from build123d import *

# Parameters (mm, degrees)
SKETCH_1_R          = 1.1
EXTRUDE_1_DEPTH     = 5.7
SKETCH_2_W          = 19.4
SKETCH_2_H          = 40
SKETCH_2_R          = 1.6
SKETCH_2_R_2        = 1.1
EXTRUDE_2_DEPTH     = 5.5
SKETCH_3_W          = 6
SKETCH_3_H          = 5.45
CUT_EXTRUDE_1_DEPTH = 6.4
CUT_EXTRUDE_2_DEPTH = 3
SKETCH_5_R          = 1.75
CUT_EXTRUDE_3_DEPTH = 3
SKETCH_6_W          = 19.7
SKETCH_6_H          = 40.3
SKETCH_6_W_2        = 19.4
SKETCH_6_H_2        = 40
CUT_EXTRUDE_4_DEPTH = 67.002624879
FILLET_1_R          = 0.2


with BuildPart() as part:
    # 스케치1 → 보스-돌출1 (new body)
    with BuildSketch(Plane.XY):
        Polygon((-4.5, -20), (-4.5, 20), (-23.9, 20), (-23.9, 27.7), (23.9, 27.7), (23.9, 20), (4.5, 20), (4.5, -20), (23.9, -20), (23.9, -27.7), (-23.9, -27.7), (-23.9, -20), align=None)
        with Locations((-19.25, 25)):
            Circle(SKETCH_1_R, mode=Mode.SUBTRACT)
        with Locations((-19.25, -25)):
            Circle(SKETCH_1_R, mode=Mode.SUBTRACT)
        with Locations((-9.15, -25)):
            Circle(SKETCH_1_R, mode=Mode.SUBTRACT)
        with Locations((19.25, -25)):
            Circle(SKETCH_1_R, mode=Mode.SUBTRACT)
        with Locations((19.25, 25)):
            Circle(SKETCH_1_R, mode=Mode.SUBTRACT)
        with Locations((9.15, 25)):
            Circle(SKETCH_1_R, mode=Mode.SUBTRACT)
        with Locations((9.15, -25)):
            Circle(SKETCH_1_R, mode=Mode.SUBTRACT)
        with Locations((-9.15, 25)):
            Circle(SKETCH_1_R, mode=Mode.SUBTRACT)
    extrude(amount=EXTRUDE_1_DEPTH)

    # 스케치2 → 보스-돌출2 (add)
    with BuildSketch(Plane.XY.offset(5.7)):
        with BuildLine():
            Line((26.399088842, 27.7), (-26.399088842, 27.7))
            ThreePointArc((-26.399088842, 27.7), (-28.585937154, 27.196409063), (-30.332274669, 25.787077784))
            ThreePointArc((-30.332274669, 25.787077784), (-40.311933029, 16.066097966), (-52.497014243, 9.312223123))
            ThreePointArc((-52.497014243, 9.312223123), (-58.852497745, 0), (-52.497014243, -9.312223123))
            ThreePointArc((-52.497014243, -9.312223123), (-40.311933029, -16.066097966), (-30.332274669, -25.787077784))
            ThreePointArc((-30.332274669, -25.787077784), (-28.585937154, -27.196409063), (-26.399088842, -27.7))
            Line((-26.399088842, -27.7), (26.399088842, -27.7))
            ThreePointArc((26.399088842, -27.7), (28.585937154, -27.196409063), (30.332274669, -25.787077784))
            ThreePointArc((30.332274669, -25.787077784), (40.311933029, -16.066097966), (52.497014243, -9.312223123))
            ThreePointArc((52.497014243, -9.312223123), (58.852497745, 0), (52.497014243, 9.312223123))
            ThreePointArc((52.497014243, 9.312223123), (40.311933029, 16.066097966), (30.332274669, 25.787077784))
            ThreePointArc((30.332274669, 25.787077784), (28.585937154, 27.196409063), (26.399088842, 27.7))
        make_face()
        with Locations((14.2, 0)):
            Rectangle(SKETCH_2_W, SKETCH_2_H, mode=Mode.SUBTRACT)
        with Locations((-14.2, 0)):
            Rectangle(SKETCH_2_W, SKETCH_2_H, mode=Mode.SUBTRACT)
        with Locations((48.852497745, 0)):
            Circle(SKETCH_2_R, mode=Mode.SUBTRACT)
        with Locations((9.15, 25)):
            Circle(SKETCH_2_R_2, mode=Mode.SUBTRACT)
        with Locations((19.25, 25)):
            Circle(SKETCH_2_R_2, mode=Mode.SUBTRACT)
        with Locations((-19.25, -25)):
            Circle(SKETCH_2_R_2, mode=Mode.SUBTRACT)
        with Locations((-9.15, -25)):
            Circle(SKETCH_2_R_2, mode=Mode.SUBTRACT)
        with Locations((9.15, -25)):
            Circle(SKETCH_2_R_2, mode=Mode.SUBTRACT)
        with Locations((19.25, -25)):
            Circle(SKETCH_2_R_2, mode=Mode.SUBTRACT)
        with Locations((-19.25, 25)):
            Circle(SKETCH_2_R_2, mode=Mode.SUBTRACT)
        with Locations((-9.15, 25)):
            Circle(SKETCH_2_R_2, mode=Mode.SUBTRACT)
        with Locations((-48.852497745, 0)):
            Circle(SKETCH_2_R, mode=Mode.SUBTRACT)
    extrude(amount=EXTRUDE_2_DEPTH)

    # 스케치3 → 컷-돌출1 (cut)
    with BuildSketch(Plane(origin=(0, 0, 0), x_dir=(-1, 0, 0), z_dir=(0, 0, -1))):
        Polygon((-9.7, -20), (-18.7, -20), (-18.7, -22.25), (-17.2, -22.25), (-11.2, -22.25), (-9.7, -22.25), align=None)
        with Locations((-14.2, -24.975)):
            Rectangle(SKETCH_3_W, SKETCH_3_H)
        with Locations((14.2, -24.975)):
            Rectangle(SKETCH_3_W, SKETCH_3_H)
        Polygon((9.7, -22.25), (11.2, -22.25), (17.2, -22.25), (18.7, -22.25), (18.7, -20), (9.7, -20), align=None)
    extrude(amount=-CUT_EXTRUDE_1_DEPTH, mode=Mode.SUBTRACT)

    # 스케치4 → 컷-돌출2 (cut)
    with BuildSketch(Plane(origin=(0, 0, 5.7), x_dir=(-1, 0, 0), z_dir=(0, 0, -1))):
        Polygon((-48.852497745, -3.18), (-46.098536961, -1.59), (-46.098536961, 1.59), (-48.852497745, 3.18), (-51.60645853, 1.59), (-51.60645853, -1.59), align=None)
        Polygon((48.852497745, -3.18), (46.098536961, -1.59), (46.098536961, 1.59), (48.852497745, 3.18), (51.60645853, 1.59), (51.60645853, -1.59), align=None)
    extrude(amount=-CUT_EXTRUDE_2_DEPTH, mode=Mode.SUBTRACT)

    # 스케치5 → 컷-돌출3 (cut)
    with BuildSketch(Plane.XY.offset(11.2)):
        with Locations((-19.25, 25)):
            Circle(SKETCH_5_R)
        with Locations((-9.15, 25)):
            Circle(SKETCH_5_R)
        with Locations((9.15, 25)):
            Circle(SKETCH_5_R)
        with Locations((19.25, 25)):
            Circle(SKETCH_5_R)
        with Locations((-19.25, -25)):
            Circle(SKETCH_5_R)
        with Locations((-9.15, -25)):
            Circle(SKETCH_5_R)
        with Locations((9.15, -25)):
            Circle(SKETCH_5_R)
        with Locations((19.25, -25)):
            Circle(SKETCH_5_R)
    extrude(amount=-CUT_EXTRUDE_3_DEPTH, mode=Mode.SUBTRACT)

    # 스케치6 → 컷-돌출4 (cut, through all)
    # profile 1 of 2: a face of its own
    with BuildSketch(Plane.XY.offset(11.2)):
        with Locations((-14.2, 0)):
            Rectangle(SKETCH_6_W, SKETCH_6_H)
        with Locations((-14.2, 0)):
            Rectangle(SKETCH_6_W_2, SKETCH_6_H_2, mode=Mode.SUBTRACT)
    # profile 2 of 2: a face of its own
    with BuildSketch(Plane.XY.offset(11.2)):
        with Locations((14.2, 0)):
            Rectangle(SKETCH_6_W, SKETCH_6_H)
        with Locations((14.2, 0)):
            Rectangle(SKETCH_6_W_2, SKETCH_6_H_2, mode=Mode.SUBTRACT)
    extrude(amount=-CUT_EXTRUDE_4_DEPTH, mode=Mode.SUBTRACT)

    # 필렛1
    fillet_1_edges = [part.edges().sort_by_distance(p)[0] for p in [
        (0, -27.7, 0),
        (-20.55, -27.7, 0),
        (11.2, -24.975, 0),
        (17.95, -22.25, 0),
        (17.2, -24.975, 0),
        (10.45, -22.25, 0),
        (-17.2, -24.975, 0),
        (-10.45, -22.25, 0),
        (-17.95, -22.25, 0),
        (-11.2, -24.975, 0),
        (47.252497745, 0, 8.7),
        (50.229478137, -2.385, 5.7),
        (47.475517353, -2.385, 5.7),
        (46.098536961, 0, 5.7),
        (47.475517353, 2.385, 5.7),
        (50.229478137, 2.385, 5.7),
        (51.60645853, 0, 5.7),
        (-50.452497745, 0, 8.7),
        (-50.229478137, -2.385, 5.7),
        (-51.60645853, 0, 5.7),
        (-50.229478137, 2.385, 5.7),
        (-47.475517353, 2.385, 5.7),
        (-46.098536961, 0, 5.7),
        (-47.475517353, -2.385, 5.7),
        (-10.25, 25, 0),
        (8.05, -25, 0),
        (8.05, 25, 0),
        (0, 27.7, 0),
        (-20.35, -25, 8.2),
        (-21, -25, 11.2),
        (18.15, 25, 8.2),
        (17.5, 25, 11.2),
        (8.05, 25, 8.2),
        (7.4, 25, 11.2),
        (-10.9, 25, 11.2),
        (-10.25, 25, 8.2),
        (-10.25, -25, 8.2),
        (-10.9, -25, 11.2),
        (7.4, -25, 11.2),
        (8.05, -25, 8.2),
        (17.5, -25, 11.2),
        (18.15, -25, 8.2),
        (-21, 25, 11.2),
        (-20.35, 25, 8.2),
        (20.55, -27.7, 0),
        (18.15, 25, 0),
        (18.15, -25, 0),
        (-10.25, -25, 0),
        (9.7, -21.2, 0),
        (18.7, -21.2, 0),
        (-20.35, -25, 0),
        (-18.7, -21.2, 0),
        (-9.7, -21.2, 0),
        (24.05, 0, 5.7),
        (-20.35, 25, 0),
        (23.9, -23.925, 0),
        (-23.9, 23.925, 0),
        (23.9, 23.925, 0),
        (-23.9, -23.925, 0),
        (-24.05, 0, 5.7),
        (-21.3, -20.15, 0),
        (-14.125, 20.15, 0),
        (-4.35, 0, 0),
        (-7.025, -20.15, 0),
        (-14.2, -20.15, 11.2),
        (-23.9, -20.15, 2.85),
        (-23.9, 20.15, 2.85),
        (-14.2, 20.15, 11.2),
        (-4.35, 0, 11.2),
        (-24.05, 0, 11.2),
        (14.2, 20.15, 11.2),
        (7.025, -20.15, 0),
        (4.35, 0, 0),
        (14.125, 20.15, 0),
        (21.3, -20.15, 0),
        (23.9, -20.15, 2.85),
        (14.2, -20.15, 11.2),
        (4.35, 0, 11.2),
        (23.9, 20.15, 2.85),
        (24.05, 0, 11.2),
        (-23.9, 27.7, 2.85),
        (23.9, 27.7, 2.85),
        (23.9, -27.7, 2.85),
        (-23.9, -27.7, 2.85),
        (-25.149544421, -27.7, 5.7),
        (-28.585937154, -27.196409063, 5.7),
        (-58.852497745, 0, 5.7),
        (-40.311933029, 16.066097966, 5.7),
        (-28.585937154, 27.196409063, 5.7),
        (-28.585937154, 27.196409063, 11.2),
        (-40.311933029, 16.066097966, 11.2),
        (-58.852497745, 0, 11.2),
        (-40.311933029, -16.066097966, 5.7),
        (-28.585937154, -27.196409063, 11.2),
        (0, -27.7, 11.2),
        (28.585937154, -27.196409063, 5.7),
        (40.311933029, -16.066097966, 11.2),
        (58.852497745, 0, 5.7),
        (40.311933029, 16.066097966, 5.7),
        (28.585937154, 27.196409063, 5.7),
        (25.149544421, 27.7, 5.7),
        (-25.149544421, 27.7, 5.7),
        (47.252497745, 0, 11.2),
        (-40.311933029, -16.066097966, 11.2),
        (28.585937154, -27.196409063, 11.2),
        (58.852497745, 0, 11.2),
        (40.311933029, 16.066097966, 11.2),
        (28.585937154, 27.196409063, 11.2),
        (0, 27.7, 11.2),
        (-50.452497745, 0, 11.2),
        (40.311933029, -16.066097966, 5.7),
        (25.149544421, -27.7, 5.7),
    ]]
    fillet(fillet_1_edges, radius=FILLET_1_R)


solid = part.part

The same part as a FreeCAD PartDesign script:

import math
import FreeCAD as App
import Part
import Sketcher

V = App.Vector
Q = App.Units.Quantity


def edges_at(feature, points):
    """Names of the edges that pass closest to the given points."""
    edges = feature.Shape.Edges
    near = lambda p: min(range(len(edges)), key=lambda i: edges[i].distToShape(Part.Vertex(*p))[0])
    return sorted({f"Edge{near(p) + 1}" for p in points})


def add_polygon(sketch, points):
    """Adds a closed chain of lines whose ends are joined by coincident constraints."""
    first, n = sketch.GeometryCount, len(points)
    for a, b in zip(points, points[1:] + points[:1]):
        sketch.addGeometry(Part.LineSegment(App.Vector(*a, 0), App.Vector(*b, 0)), False)
    for i in range(n):
        sketch.addConstraint(Sketcher.Constraint("Coincident", first + i, 2, first + (i + 1) % n, 1))

doc = App.newDocument("Part")
params = doc.addObject("Spreadsheet::Sheet", "Params")
for row, (alias, value) in enumerate([
    ("sketch1_diameter", "2.2 mm"),
    ("sketch1_height", "40 mm"),
    ("sketch1_width", "19.4 mm"),
    ("sketch1_width2", "47.8 mm"),
    ("sketch1_height2", "7.7 mm"),
    ("pad1_length", "5.7 mm"),
    ("sketch2_radius", "5 mm"),
    ("sketch2_radius2", "10 mm"),
    ("sketch2_diameter", "2.2 mm"),
    ("sketch2_diameter2", "3.2 mm"),
    ("sketch2_radius3", "52.5 mm"),
    ("pad2_length", "5.5 mm"),
    ("sketch3_width", "9 mm"),
    ("sketch3_width2", "6 mm"),
    ("sketch3_height", "2.25 mm"),
    ("sketch3_height2", "5.45 mm"),
    ("pocket1_length", "6.4 mm"),
    ("sketch4_height", "3.18 mm"),
    ("sketch4_length", "3.18 mm"),
    ("pocket2_length", "3 mm"),
    ("sketch5_diameter", "3.5 mm"),
    ("pocket3_length", "3 mm"),
    ("sketch6_height", "40 mm"),
    ("sketch6_width", "19.7 mm"),
    ("sketch6_width2", "19.4 mm"),
    ("sketch6_height2", "40.3 mm"),
    ("pocket4_length", "67.002625 mm"),
    ("fillet_radius", "0.2 mm"),
], start=1):
    params.set(f"A{row}", alias)
    params.set(f"B{row}", "=" + value)
    params.setAlias(f"B{row}", alias)

body = doc.addObject("PartDesign::Body", "Body")

sketch1 = body.newObject("Sketcher::SketchObject", "Sketch")
sketch1.AttachmentSupport = (doc.getObject("XY_Plane"), [""])
sketch1.MapMode = "FlatFace"
add_polygon(sketch1, [(-4.5, 20), (-4.5, -20), (-23.9, -20), (-23.9, -27.7), (23.9, -27.7), (23.9, -20), (4.5, -20), (4.5, 20), (23.9, 20), (23.9, 27.7), (-23.9, 27.7), (-23.9, 20)])
sketch1.addGeometry(Part.Circle(V(19.25, -25, 0), V(0, 0, 1), 1.1), False)
sketch1.addGeometry(Part.Circle(V(9.15, -25, 0), V(0, 0, 1), 1.1), False)
sketch1.addGeometry(Part.Circle(V(-9.15, -25, 0), V(0, 0, 1), 1.1), False)
sketch1.addGeometry(Part.Circle(V(-19.25, -25, 0), V(0, 0, 1), 1.1), False)
sketch1.addGeometry(Part.Circle(V(19.25, 25, 0), V(0, 0, 1), 1.1), False)
sketch1.addGeometry(Part.Circle(V(9.15, 25, 0), V(0, 0, 1), 1.1), False)
sketch1.addGeometry(Part.Circle(V(-9.15, 25, 0), V(0, 0, 1), 1.1), False)
sketch1.addGeometry(Part.Circle(V(-19.25, 25, 0), V(0, 0, 1), 1.1), False)
sketch1.addConstraint([
    Sketcher.Constraint("Vertical", 0),
    Sketcher.Constraint("Horizontal", 1),
    Sketcher.Constraint("Vertical", 2),
    Sketcher.Constraint("Horizontal", 3),
    Sketcher.Constraint("Vertical", 4),
    Sketcher.Constraint("Horizontal", 5),
    Sketcher.Constraint("Vertical", 6),
    Sketcher.Constraint("Horizontal", 7),
    Sketcher.Constraint("Vertical", 8),
    Sketcher.Constraint("Horizontal", 9),
    Sketcher.Constraint("Vertical", 10),
    Sketcher.Constraint("Horizontal", 11),
    Sketcher.Constraint("Equal", 12, 13),
    Sketcher.Constraint("Equal", 13, 14),
    Sketcher.Constraint("Equal", 14, 15),
    Sketcher.Constraint("Equal", 15, 16),
    Sketcher.Constraint("Equal", 16, 17),
    Sketcher.Constraint("Equal", 17, 18),
    Sketcher.Constraint("Equal", 18, 19),
    Sketcher.Constraint("Symmetric", 15, 3, 16, 3, -1, 1),
    Sketcher.Constraint("Symmetric", 14, 3, 17, 3, -1, 1),
    Sketcher.Constraint("Symmetric", 13, 3, 18, 3, -1, 1),
    Sketcher.Constraint("Symmetric", 12, 3, 19, 3, -1, 1),
    Sketcher.Constraint("Symmetric", 0, 2, 6, 2, -1, 1),
    Sketcher.Constraint("Symmetric", 2, 2, 8, 2, -1, 1),
    Sketcher.Constraint("Symmetric", 4, 2, 10, 2, -1, 1),
    Sketcher.Constraint("Symmetric", 13, 3, 14, 3, -2),
    Sketcher.Constraint("Symmetric", 12, 3, 15, 3, -2),
    Sketcher.Constraint("Symmetric", 1, 2, 4, 2, -2),
    Sketcher.Constraint("Horizontal", 12, 3, 13, 3),
    Sketcher.Constraint("Diameter", 12, 2.2),
    Sketcher.Constraint("DistanceY", 0, 2, 0, 1, 40.0),
    Sketcher.Constraint("DistanceX", 1, 2, 1, 1, 19.4),
    Sketcher.Constraint("DistanceX", 3, 1, 3, 2, 47.8),
    Sketcher.Constraint("DistanceY", 2, 2, 2, 1, 7.7),
    Sketcher.Constraint("DistanceY", 12, 3, -1, 1, 25.0),
    Sketcher.Constraint("DistanceX", 13, 3, 12, 3, 10.1),
    Sketcher.Constraint("DistanceX", 14, 3, 13, 3, 18.3),
])
sketch1.setExpression("Constraints[42]", "Params.sketch1_diameter")
sketch1.setExpression("Constraints[43]", "Params.sketch1_height")
sketch1.setExpression("Constraints[44]", "Params.sketch1_width")
sketch1.setExpression("Constraints[45]", "Params.sketch1_width2")
sketch1.setExpression("Constraints[46]", "Params.sketch1_height2")
pad1 = body.newObject("PartDesign::Pad", "Pad")
pad1.Profile = sketch1
pad1.setExpression("Length", "Params.pad1_length")

sketch2 = body.newObject("Sketcher::SketchObject", "Sketch001")
sketch2.AttachmentSupport = (doc.getObject("XY_Plane"), [""])
sketch2.MapMode = "FlatFace"
sketch2.AttachmentOffset = App.Placement(V(0, 0, 5.7), App.Rotation())
sketch2.addGeometry(Part.LineSegment(V(26.399089, 27.7, 0), V(-26.399089, 27.7, 0)), False)
sketch2.addGeometry(Part.ArcOfCircle(Part.Circle(V(-26.399089, 22.7, 0), V(0, 0, 1), 5), math.radians(90), math.radians(141.872351)), False)
sketch2.addGeometry(Part.ArcOfCircle(Part.Circle(V(-71.630726, 58.201395, 0), V(0, 0, 1), 52.5), math.radians(-68.62616), math.radians(-38.127649)), False)
sketch2.addGeometry(Part.ArcOfCircle(Part.Circle(V(-48.852498, 0, 0), V(0, 0, 1), 10), math.radians(111.37384), math.radians(248.62616)), False)
sketch2.addGeometry(Part.ArcOfCircle(Part.Circle(V(-71.630726, -58.201395, 0), V(0, 0, 1), 52.5), math.radians(38.127649), math.radians(68.62616)), False)
sketch2.addGeometry(Part.ArcOfCircle(Part.Circle(V(-26.399089, -22.7, 0), V(0, 0, 1), 5), math.radians(-141.872351), math.radians(-90)), False)
sketch2.addGeometry(Part.LineSegment(V(-26.399089, -27.7, 0), V(26.399089, -27.7, 0)), False)
sketch2.addGeometry(Part.ArcOfCircle(Part.Circle(V(26.399089, -22.7, 0), V(0, 0, 1), 5), math.radians(-90), math.radians(-38.127649)), False)
sketch2.addGeometry(Part.ArcOfCircle(Part.Circle(V(71.630726, -58.201395, 0), V(0, 0, 1), 52.5), math.radians(111.37384), math.radians(141.872351)), False)
sketch2.addGeometry(Part.ArcOfCircle(Part.Circle(V(48.852498, 0, 0), V(0, 0, 1), 10), math.radians(-68.62616), math.radians(68.62616)), False)
sketch2.addGeometry(Part.ArcOfCircle(Part.Circle(V(71.630726, 58.201395, 0), V(0, 0, 1), 52.5), math.radians(-141.872351), math.radians(-111.37384)), False)
sketch2.addGeometry(Part.ArcOfCircle(Part.Circle(V(26.399089, 22.7, 0), V(0, 0, 1), 5), math.radians(38.127649), math.radians(90)), False)
sketch2.addGeometry(Part.Circle(V(-19.25, -25, 0), V(0, 0, 1), 1.1), False)
sketch2.addGeometry(Part.Circle(V(-9.15, -25, 0), V(0, 0, 1), 1.1), False)
sketch2.addGeometry(Part.Circle(V(9.15, -25, 0), V(0, 0, 1), 1.1), False)
sketch2.addGeometry(Part.Circle(V(19.25, -25, 0), V(0, 0, 1), 1.1), False)
sketch2.addGeometry(Part.Circle(V(-48.852498, 0, 0), V(0, 0, 1), 1.6), False)
add_polygon(sketch2, [(-4.5, -20), (-23.9, -20), (-23.9, 20), (-4.5, 20)])
sketch2.addGeometry(Part.Circle(V(-19.25, 25, 0), V(0, 0, 1), 1.1), False)
sketch2.addGeometry(Part.Circle(V(-9.15, 25, 0), V(0, 0, 1), 1.1), False)
add_polygon(sketch2, [(23.9, -20), (4.5, -20), (4.5, 20), (23.9, 20)])
sketch2.addGeometry(Part.Circle(V(48.852498, 0, 0), V(0, 0, 1), 1.6), False)
sketch2.addGeometry(Part.Circle(V(9.15, 25, 0), V(0, 0, 1), 1.1), False)
sketch2.addGeometry(Part.Circle(V(19.25, 25, 0), V(0, 0, 1), 1.1), False)
sketch2.addConstraint([
    Sketcher.Constraint("Tangent", 0, 2, 1, 1),
    Sketcher.Constraint("Tangent", 1, 2, 2, 2),
    Sketcher.Constraint("Tangent", 2, 1, 3, 1),
    Sketcher.Constraint("Tangent", 3, 2, 4, 2),
    Sketcher.Constraint("Tangent", 4, 1, 5, 1),
    Sketcher.Constraint("Tangent", 5, 2, 6, 1),
    Sketcher.Constraint("Tangent", 6, 2, 7, 1),
    Sketcher.Constraint("Tangent", 7, 2, 8, 2),
    Sketcher.Constraint("Tangent", 8, 1, 9, 1),
    Sketcher.Constraint("Tangent", 9, 2, 10, 2),
    Sketcher.Constraint("Tangent", 10, 1, 11, 1),
    Sketcher.Constraint("Tangent", 11, 2, 0, 1),
    Sketcher.Constraint("Horizontal", 0),
    Sketcher.Constraint("Horizontal", 6),
    Sketcher.Constraint("Horizontal", 17),
    Sketcher.Constraint("Vertical", 18),
    Sketcher.Constraint("Horizontal", 19),
    Sketcher.Constraint("Vertical", 20),
    Sketcher.Constraint("Horizontal", 23),
    Sketcher.Constraint("Vertical", 24),
    Sketcher.Constraint("Horizontal", 25),
    Sketcher.Constraint("Vertical", 26),
    Sketcher.Constraint("Coincident", 16, 3, 3, 3),
    Sketcher.Constraint("Coincident", 27, 3, 9, 3),
    Sketcher.Constraint("Equal", 2, 4),
    Sketcher.Constraint("Equal", 1, 5),
    Sketcher.Constraint("Equal", 5, 7),
    Sketcher.Constraint("Equal", 4, 8),
    Sketcher.Constraint("Equal", 3, 9),
    Sketcher.Constraint("Equal", 8, 10),
    Sketcher.Constraint("Equal", 7, 11),
    Sketcher.Constraint("Equal", 12, 13),
    Sketcher.Constraint("Equal", 13, 14),
    Sketcher.Constraint("Equal", 14, 15),
    Sketcher.Constraint("Equal", 15, 21),
    Sketcher.Constraint("Equal", 21, 22),
    Sketcher.Constraint("Equal", 16, 27),
    Sketcher.Constraint("Equal", 22, 28),
    Sketcher.Constraint("Equal", 28, 29),
    Sketcher.Constraint("Symmetric", 1, 3, 7, 3, -1, 1),
    Sketcher.Constraint("Symmetric", 3, 3, 9, 3, -1, 1),
    Sketcher.Constraint("Symmetric", 15, 3, 21, 3, -1, 1),
    Sketcher.Constraint("Symmetric", 14, 3, 22, 3, -1, 1),
    Sketcher.Constraint("Symmetric", 13, 3, 28, 3, -1, 1),
    Sketcher.Constraint("Symmetric", 12, 3, 29, 3, -1, 1),
    Sketcher.Constraint("Symmetric", 19, 2, 23, 2, -1, 1),
    Sketcher.Constraint("Symmetric", 17, 2, 25, 2, -1, 1),
    Sketcher.Constraint("Symmetric", 4, 3, 8, 3, -2),
    Sketcher.Constraint("Symmetric", 13, 3, 14, 3, -2),
    Sketcher.Constraint("Symmetric", 12, 3, 15, 3, -2),
    Sketcher.Constraint("Horizontal", 2, 3, 10, 3),
    Sketcher.Constraint("Horizontal", 12, 3, 13, 3),
    Sketcher.Constraint("Horizontal", 20, 2, 23, 2),
    Sketcher.Constraint("Radius", 1, 5.0),
    Sketcher.Constraint("Radius", 3, 10.0),
    Sketcher.Constraint("Diameter", 12, 2.2),
    Sketcher.Constraint("Diameter", 16, 3.2),
    Sketcher.Constraint("Radius", 2, 52.5),
    Sketcher.Constraint("DistanceY", 18, 1, 18, 2, 40.0),
    Sketcher.Constraint("DistanceX", 17, 2, 17, 1, 19.4),
    Sketcher.Constraint("DistanceY", 12, 3, -1, 1, 25.0),
    Sketcher.Constraint("DistanceX", 20, 2, 23, 2, 9.0),
    Sketcher.Constraint("DistanceY", -1, 1, 1, 3, 22.7),
    Sketcher.Constraint("DistanceX", 12, 3, 13, 3, 10.1),
    Sketcher.Constraint("DistanceX", 13, 3, 14, 3, 18.3),
    Sketcher.Constraint("DistanceX", 0, 2, 0, 1, 52.798178),
    Sketcher.Constraint("DistanceX", 3, 3, 1, 3, 22.453409),
])
sketch2.setExpression("Constraints[61]", "Params.sketch2_radius")
sketch2.setExpression("Constraints[62]", "Params.sketch2_radius2")
sketch2.setExpression("Constraints[63]", "Params.sketch2_diameter")
sketch2.setExpression("Constraints[64]", "Params.sketch2_diameter2")
sketch2.setExpression("Constraints[65]", "Params.sketch2_radius3")
pad2 = body.newObject("PartDesign::Pad", "Pad001")
pad2.Profile = sketch2
pad2.setExpression("Length", "Params.pad2_length")

sketch3 = body.newObject("Sketcher::SketchObject", "Sketch002")
sketch3.AttachmentSupport = (doc.getObject("XY_Plane"), [""])
sketch3.MapMode = "FlatFace"
add_polygon(sketch3, [(9.7, -20), (18.7, -20), (18.7, -22.25), (17.2, -22.25), (17.2, -27.7), (11.2, -27.7), (11.2, -22.25), (9.7, -22.25)])
add_polygon(sketch3, [(-11.2, -22.25), (-11.2, -27.7), (-17.2, -27.7), (-17.2, -22.25), (-18.7, -22.25), (-18.7, -20), (-9.7, -20), (-9.7, -22.25)])
sketch3.addConstraint([
    Sketcher.Constraint("Horizontal", 0),
    Sketcher.Constraint("Vertical", 1),
    Sketcher.Constraint("Horizontal", 2),
    Sketcher.Constraint("Vertical", 3),
    Sketcher.Constraint("Horizontal", 4),
    Sketcher.Constraint("Vertical", 5),
    Sketcher.Constraint("Horizontal", 6),
    Sketcher.Constraint("Vertical", 7),
    Sketcher.Constraint("Vertical", 8),
    Sketcher.Constraint("Horizontal", 9),
    Sketcher.Constraint("Vertical", 10),
    Sketcher.Constraint("Horizontal", 11),
    Sketcher.Constraint("Vertical", 12),
    Sketcher.Constraint("Horizontal", 13),
    Sketcher.Constraint("Vertical", 14),
    Sketcher.Constraint("Horizontal", 15),
    Sketcher.Constraint("Symmetric", 4, 2, 8, 2, -2),
    Sketcher.Constraint("Symmetric", 2, 2, 10, 2, -2),
    Sketcher.Constraint("Symmetric", 0, 2, 12, 2, -2),
    Sketcher.Constraint("Symmetric", 6, 2, 14, 2, -2),
    Sketcher.Constraint("Horizontal", 2, 2, 5, 2),
    Sketcher.Constraint("Equal", 2, 6),
    Sketcher.Constraint("DistanceX", 0, 1, 0, 2, 9.0),
    Sketcher.Constraint("DistanceX", 4, 2, 4, 1, 6.0),
    Sketcher.Constraint("DistanceY", 0, 2, -1, 1, 20.0),
    Sketcher.Constraint("DistanceY", 1, 2, 1, 1, 2.25),
    Sketcher.Constraint("DistanceY", 3, 2, 3, 1, 5.45),
    Sketcher.Constraint("DistanceX", -1, 1, 0, 2, 18.7),
])
sketch3.setExpression("Constraints[38]", "Params.sketch3_width")
sketch3.setExpression("Constraints[39]", "Params.sketch3_width2")
sketch3.setExpression("Constraints[41]", "Params.sketch3_height")
sketch3.setExpression("Constraints[42]", "Params.sketch3_height2")
pocket1 = body.newObject("PartDesign::Pocket", "Pocket")
pocket1.Profile = sketch3
pocket1.setExpression("Length", "Params.pocket1_length")
pocket1.Reversed = True

sketch4 = body.newObject("Sketcher::SketchObject", "Sketch003")
sketch4.AttachmentSupport = (doc.getObject("XY_Plane"), [""])
sketch4.MapMode = "FlatFace"
sketch4.AttachmentOffset = App.Placement(V(0, 0, 5.7), App.Rotation())
add_polygon(sketch4, [(48.852498, -3.18), (46.098537, -1.59), (46.098537, 1.59), (48.852498, 3.18), (51.606459, 1.59), (51.606459, -1.59)])
add_polygon(sketch4, [(-46.098537, -1.59), (-48.852498, -3.18), (-51.606459, -1.59), (-51.606459, 1.59), (-48.852498, 3.18), (-46.098537, 1.59)])
sketch4.addConstraint([
    Sketcher.Constraint("Vertical", 1),
    Sketcher.Constraint("Vertical", 4),
    Sketcher.Constraint("Vertical", 8),
    Sketcher.Constraint("Vertical", 11),
    Sketcher.Constraint("Symmetric", 2, 2, 6, 2, -1, 1),
    Sketcher.Constraint("Symmetric", 3, 2, 7, 2, -1, 1),
    Sketcher.Constraint("Symmetric", 5, 2, 9, 2, -1, 1),
    Sketcher.Constraint("Symmetric", 0, 2, 10, 2, -1, 1),
    Sketcher.Constraint("Symmetric", 5, 2, 6, 2, -2),
    Sketcher.Constraint("Parallel", 0, 3),
    Sketcher.Constraint("Parallel", 2, 5),
    Sketcher.Constraint("Parallel", 5, 6),
    Sketcher.Constraint("Parallel", 6, 9),
    Sketcher.Constraint("Horizontal", 1, 2, 3, 2),
    Sketcher.Constraint("Horizontal", 0, 2, 4, 2),
    Sketcher.Constraint("Angle", 0, Q("150 deg")),
    Sketcher.Constraint("DistanceY", 1, 1, 1, 2, 3.18),
    Sketcher.Constraint("Distance", 0, 3.18),
    Sketcher.Constraint("DistanceX", -1, 1, 3, 2, 51.606459),
])
sketch4.setExpression("Constraints[28]", "Params.sketch4_height")
sketch4.setExpression("Constraints[29]", "Params.sketch4_length")
pocket2 = body.newObject("PartDesign::Pocket", "Pocket001")
pocket2.Profile = sketch4
pocket2.setExpression("Length", "Params.pocket2_length")
pocket2.Reversed = True

sketch5 = body.newObject("Sketcher::SketchObject", "Sketch004")
sketch5.AttachmentSupport = (doc.getObject("XY_Plane"), [""])
sketch5.MapMode = "FlatFace"
sketch5.AttachmentOffset = App.Placement(V(0, 0, 11.2), App.Rotation())
sketch5.addGeometry([
    Part.Circle(V(-19.25, 25, 0), V(0, 0, 1), 1.75),
    Part.Circle(V(-9.15, 25, 0), V(0, 0, 1), 1.75),
    Part.Circle(V(9.15, 25, 0), V(0, 0, 1), 1.75),
    Part.Circle(V(19.25, 25, 0), V(0, 0, 1), 1.75),
    Part.Circle(V(-19.25, -25, 0), V(0, 0, 1), 1.75),
    Part.Circle(V(-9.15, -25, 0), V(0, 0, 1), 1.75),
    Part.Circle(V(9.15, -25, 0), V(0, 0, 1), 1.75),
    Part.Circle(V(19.25, -25, 0), V(0, 0, 1), 1.75),
], False)
sketch5.addConstraint([
    Sketcher.Constraint("Equal", 0, 1),
    Sketcher.Constraint("Equal", 1, 2),
    Sketcher.Constraint("Equal", 2, 3),
    Sketcher.Constraint("Equal", 3, 4),
    Sketcher.Constraint("Equal", 4, 5),
    Sketcher.Constraint("Equal", 5, 6),
    Sketcher.Constraint("Equal", 6, 7),
    Sketcher.Constraint("Symmetric", 3, 3, 4, 3, -1, 1),
    Sketcher.Constraint("Symmetric", 2, 3, 5, 3, -1, 1),
    Sketcher.Constraint("Symmetric", 1, 3, 6, 3, -1, 1),
    Sketcher.Constraint("Symmetric", 0, 3, 7, 3, -1, 1),
    Sketcher.Constraint("Symmetric", 1, 3, 2, 3, -2),
    Sketcher.Constraint("Symmetric", 0, 3, 3, 3, -2),
    Sketcher.Constraint("Horizontal", 0, 3, 1, 3),
    Sketcher.Constraint("Diameter", 0, 3.5),
    Sketcher.Constraint("DistanceY", -1, 1, 0, 3, 25.0),
    Sketcher.Constraint("DistanceX", 0, 3, 1, 3, 10.1),
    Sketcher.Constraint("DistanceX", 1, 3, 2, 3, 18.3),
])
sketch5.setExpression("Constraints[14]", "Params.sketch5_diameter")
pocket3 = body.newObject("PartDesign::Pocket", "Pocket002")
pocket3.Profile = sketch5
pocket3.setExpression("Length", "Params.pocket3_length")

sketch6 = body.newObject("Sketcher::SketchObject", "Sketch005")
sketch6.AttachmentSupport = (doc.getObject("XY_Plane"), [""])
sketch6.MapMode = "FlatFace"
sketch6.AttachmentOffset = App.Placement(V(0, 0, 11.2), App.Rotation())
add_polygon(sketch6, [(-24.05, 20.15), (-24.05, -20.15), (-4.35, -20.15), (-4.35, 20.15)])
add_polygon(sketch6, [(-4.5, -20), (-23.9, -20), (-23.9, 20), (-4.5, 20)])
add_polygon(sketch6, [(4.35, 20.15), (4.35, -20.15), (24.05, -20.15), (24.05, 20.15)])
add_polygon(sketch6, [(23.9, -20), (4.5, -20), (4.5, 20), (23.9, 20)])
sketch6.addConstraint([
    Sketcher.Constraint("Vertical", 0),
    Sketcher.Constraint("Horizontal", 1),
    Sketcher.Constraint("Vertical", 2),
    Sketcher.Constraint("Horizontal", 3),
    Sketcher.Constraint("Horizontal", 4),
    Sketcher.Constraint("Vertical", 5),
    Sketcher.Constraint("Horizontal", 6),
    Sketcher.Constraint("Vertical", 7),
    Sketcher.Constraint("Vertical", 8),
    Sketcher.Constraint("Horizontal", 9),
    Sketcher.Constraint("Vertical", 10),
    Sketcher.Constraint("Horizontal", 11),
    Sketcher.Constraint("Horizontal", 12),
    Sketcher.Constraint("Vertical", 13),
    Sketcher.Constraint("Horizontal", 14),
    Sketcher.Constraint("Vertical", 15),
    Sketcher.Constraint("Symmetric", 2, 2, 8, 2, -1, 1),
    Sketcher.Constraint("Symmetric", 0, 2, 10, 2, -1, 1),
    Sketcher.Constraint("Symmetric", 6, 2, 12, 2, -1, 1),
    Sketcher.Constraint("Symmetric", 4, 2, 14, 2, -1, 1),
    Sketcher.Constraint("Horizontal", 1, 2, 8, 2),
    Sketcher.Constraint("Horizontal", 7, 2, 12, 2),
    Sketcher.Constraint("DistanceY", 5, 1, 5, 2, 40.0),
    Sketcher.Constraint("DistanceX", 1, 1, 1, 2, 19.7),
    Sketcher.Constraint("DistanceX", 4, 2, 4, 1, 19.4),
    Sketcher.Constraint("DistanceY", 0, 2, 0, 1, 40.3),
    Sketcher.Constraint("DistanceX", 7, 2, 12, 2, 9.0),
    Sketcher.Constraint("DistanceX", 1, 2, 8, 2, 8.7),
])
sketch6.setExpression("Constraints[38]", "Params.sketch6_height")
sketch6.setExpression("Constraints[39]", "Params.sketch6_width")
sketch6.setExpression("Constraints[40]", "Params.sketch6_width2")
sketch6.setExpression("Constraints[41]", "Params.sketch6_height2")
pocket4 = body.newObject("PartDesign::Pocket", "Pocket003")
pocket4.Profile = sketch6
pocket4.setExpression("Length", "Params.pocket4_length")
doc.recompute()

fillet = body.newObject("PartDesign::Fillet", "Fillet")
fillet.Base = (pocket4, edges_at(pocket4, [
    (0, -27.7, 0),
    (-20.55, -27.7, 0),
    (11.2, -24.975, 0),
    (17.95, -22.25, 0),
    (17.2, -24.975, 0),
    (10.45, -22.25, 0),
    (-17.2, -24.975, 0),
    (-10.45, -22.25, 0),
    (-17.95, -22.25, 0),
    (-11.2, -24.975, 0),
    (47.252, 0, 8.7),
    (50.229, -2.385, 5.7),
    (47.476, -2.385, 5.7),
    (46.099, 0, 5.7),
    (47.476, 2.385, 5.7),
    (50.229, 2.385, 5.7),
    (51.606, 0, 5.7),
    (-50.452, 0, 8.7),
    (-50.229, -2.385, 5.7),
    (-51.606, 0, 5.7),
    (-50.229, 2.385, 5.7),
    (-47.476, 2.385, 5.7),
    (-46.099, 0, 5.7),
    (-47.476, -2.385, 5.7),
    (-10.25, 25, 0),
    (8.05, -25, 0),
    (8.05, 25, 0),
    (0, 27.7, 0),
    (-20.35, -25, 8.2),
    (-21, -25, 11.2),
    (18.15, 25, 8.2),
    (17.5, 25, 11.2),
    (8.05, 25, 8.2),
    (7.4, 25, 11.2),
    (-10.9, 25, 11.2),
    (-10.25, 25, 8.2),
    (-10.25, -25, 8.2),
    (-10.9, -25, 11.2),
    (7.4, -25, 11.2),
    (8.05, -25, 8.2),
    (17.5, -25, 11.2),
    (18.15, -25, 8.2),
    (-21, 25, 11.2),
    (-20.35, 25, 8.2),
    (20.55, -27.7, 0),
    (18.15, 25, 0),
    (18.15, -25, 0),
    (-10.25, -25, 0),
    (9.7, -21.2, 0),
    (18.7, -21.2, 0),
    (-20.35, -25, 0),
    (-18.7, -21.2, 0),
    (-9.7, -21.2, 0),
    (24.05, 0, 5.7),
    (-20.35, 25, 0),
    (23.9, -23.925, 0),
    (-23.9, 23.925, 0),
    (23.9, 23.925, 0),
    (-23.9, -23.925, 0),
    (-24.05, 0, 5.7),
    (-21.3, -20.15, 0),
    (-14.125, 20.15, 0),
    (-4.35, 0, 0),
    (-7.025, -20.15, 0),
    (-14.2, -20.15, 11.2),
    (-23.9, -20.15, 2.85),
    (-23.9, 20.15, 2.85),
    (-14.2, 20.15, 11.2),
    (-4.35, 0, 11.2),
    (-24.05, 0, 11.2),
    (14.2, 20.15, 11.2),
    (7.025, -20.15, 0),
    (4.35, 0, 0),
    (14.125, 20.15, 0),
    (21.3, -20.15, 0),
    (23.9, -20.15, 2.85),
    (14.2, -20.15, 11.2),
    (4.35, 0, 11.2),
    (23.9, 20.15, 2.85),
    (24.05, 0, 11.2),
    (-23.9, 27.7, 2.85),
    (23.9, 27.7, 2.85),
    (23.9, -27.7, 2.85),
    (-23.9, -27.7, 2.85),
    (-25.15, -27.7, 5.7),
    (-28.586, -27.196, 5.7),
    (-58.852, 0, 5.7),
    (-40.312, 16.066, 5.7),
    (-28.586, 27.196, 5.7),
    (-28.586, 27.196, 11.2),
    (-40.312, 16.066, 11.2),
    (-58.852, 0, 11.2),
    (-40.312, -16.066, 5.7),
    (-28.586, -27.196, 11.2),
    (0, -27.7, 11.2),
    (28.586, -27.196, 5.7),
    (40.312, -16.066, 11.2),
    (58.852, 0, 5.7),
    (40.312, 16.066, 5.7),
    (28.586, 27.196, 5.7),
    (25.15, 27.7, 5.7),
    (-25.15, 27.7, 5.7),
    (47.252, 0, 11.2),
    (-40.312, -16.066, 11.2),
    (28.586, -27.196, 11.2),
    (58.852, 0, 11.2),
    (40.312, 16.066, 11.2),
    (28.586, 27.196, 11.2),
    (0, 27.7, 11.2),
    (-50.452, 0, 11.2),
    (40.312, -16.066, 5.7),
    (25.15, -27.7, 5.7),
]))
fillet.setExpression("Radius", "Params.fillet_radius")

doc.recompute()
